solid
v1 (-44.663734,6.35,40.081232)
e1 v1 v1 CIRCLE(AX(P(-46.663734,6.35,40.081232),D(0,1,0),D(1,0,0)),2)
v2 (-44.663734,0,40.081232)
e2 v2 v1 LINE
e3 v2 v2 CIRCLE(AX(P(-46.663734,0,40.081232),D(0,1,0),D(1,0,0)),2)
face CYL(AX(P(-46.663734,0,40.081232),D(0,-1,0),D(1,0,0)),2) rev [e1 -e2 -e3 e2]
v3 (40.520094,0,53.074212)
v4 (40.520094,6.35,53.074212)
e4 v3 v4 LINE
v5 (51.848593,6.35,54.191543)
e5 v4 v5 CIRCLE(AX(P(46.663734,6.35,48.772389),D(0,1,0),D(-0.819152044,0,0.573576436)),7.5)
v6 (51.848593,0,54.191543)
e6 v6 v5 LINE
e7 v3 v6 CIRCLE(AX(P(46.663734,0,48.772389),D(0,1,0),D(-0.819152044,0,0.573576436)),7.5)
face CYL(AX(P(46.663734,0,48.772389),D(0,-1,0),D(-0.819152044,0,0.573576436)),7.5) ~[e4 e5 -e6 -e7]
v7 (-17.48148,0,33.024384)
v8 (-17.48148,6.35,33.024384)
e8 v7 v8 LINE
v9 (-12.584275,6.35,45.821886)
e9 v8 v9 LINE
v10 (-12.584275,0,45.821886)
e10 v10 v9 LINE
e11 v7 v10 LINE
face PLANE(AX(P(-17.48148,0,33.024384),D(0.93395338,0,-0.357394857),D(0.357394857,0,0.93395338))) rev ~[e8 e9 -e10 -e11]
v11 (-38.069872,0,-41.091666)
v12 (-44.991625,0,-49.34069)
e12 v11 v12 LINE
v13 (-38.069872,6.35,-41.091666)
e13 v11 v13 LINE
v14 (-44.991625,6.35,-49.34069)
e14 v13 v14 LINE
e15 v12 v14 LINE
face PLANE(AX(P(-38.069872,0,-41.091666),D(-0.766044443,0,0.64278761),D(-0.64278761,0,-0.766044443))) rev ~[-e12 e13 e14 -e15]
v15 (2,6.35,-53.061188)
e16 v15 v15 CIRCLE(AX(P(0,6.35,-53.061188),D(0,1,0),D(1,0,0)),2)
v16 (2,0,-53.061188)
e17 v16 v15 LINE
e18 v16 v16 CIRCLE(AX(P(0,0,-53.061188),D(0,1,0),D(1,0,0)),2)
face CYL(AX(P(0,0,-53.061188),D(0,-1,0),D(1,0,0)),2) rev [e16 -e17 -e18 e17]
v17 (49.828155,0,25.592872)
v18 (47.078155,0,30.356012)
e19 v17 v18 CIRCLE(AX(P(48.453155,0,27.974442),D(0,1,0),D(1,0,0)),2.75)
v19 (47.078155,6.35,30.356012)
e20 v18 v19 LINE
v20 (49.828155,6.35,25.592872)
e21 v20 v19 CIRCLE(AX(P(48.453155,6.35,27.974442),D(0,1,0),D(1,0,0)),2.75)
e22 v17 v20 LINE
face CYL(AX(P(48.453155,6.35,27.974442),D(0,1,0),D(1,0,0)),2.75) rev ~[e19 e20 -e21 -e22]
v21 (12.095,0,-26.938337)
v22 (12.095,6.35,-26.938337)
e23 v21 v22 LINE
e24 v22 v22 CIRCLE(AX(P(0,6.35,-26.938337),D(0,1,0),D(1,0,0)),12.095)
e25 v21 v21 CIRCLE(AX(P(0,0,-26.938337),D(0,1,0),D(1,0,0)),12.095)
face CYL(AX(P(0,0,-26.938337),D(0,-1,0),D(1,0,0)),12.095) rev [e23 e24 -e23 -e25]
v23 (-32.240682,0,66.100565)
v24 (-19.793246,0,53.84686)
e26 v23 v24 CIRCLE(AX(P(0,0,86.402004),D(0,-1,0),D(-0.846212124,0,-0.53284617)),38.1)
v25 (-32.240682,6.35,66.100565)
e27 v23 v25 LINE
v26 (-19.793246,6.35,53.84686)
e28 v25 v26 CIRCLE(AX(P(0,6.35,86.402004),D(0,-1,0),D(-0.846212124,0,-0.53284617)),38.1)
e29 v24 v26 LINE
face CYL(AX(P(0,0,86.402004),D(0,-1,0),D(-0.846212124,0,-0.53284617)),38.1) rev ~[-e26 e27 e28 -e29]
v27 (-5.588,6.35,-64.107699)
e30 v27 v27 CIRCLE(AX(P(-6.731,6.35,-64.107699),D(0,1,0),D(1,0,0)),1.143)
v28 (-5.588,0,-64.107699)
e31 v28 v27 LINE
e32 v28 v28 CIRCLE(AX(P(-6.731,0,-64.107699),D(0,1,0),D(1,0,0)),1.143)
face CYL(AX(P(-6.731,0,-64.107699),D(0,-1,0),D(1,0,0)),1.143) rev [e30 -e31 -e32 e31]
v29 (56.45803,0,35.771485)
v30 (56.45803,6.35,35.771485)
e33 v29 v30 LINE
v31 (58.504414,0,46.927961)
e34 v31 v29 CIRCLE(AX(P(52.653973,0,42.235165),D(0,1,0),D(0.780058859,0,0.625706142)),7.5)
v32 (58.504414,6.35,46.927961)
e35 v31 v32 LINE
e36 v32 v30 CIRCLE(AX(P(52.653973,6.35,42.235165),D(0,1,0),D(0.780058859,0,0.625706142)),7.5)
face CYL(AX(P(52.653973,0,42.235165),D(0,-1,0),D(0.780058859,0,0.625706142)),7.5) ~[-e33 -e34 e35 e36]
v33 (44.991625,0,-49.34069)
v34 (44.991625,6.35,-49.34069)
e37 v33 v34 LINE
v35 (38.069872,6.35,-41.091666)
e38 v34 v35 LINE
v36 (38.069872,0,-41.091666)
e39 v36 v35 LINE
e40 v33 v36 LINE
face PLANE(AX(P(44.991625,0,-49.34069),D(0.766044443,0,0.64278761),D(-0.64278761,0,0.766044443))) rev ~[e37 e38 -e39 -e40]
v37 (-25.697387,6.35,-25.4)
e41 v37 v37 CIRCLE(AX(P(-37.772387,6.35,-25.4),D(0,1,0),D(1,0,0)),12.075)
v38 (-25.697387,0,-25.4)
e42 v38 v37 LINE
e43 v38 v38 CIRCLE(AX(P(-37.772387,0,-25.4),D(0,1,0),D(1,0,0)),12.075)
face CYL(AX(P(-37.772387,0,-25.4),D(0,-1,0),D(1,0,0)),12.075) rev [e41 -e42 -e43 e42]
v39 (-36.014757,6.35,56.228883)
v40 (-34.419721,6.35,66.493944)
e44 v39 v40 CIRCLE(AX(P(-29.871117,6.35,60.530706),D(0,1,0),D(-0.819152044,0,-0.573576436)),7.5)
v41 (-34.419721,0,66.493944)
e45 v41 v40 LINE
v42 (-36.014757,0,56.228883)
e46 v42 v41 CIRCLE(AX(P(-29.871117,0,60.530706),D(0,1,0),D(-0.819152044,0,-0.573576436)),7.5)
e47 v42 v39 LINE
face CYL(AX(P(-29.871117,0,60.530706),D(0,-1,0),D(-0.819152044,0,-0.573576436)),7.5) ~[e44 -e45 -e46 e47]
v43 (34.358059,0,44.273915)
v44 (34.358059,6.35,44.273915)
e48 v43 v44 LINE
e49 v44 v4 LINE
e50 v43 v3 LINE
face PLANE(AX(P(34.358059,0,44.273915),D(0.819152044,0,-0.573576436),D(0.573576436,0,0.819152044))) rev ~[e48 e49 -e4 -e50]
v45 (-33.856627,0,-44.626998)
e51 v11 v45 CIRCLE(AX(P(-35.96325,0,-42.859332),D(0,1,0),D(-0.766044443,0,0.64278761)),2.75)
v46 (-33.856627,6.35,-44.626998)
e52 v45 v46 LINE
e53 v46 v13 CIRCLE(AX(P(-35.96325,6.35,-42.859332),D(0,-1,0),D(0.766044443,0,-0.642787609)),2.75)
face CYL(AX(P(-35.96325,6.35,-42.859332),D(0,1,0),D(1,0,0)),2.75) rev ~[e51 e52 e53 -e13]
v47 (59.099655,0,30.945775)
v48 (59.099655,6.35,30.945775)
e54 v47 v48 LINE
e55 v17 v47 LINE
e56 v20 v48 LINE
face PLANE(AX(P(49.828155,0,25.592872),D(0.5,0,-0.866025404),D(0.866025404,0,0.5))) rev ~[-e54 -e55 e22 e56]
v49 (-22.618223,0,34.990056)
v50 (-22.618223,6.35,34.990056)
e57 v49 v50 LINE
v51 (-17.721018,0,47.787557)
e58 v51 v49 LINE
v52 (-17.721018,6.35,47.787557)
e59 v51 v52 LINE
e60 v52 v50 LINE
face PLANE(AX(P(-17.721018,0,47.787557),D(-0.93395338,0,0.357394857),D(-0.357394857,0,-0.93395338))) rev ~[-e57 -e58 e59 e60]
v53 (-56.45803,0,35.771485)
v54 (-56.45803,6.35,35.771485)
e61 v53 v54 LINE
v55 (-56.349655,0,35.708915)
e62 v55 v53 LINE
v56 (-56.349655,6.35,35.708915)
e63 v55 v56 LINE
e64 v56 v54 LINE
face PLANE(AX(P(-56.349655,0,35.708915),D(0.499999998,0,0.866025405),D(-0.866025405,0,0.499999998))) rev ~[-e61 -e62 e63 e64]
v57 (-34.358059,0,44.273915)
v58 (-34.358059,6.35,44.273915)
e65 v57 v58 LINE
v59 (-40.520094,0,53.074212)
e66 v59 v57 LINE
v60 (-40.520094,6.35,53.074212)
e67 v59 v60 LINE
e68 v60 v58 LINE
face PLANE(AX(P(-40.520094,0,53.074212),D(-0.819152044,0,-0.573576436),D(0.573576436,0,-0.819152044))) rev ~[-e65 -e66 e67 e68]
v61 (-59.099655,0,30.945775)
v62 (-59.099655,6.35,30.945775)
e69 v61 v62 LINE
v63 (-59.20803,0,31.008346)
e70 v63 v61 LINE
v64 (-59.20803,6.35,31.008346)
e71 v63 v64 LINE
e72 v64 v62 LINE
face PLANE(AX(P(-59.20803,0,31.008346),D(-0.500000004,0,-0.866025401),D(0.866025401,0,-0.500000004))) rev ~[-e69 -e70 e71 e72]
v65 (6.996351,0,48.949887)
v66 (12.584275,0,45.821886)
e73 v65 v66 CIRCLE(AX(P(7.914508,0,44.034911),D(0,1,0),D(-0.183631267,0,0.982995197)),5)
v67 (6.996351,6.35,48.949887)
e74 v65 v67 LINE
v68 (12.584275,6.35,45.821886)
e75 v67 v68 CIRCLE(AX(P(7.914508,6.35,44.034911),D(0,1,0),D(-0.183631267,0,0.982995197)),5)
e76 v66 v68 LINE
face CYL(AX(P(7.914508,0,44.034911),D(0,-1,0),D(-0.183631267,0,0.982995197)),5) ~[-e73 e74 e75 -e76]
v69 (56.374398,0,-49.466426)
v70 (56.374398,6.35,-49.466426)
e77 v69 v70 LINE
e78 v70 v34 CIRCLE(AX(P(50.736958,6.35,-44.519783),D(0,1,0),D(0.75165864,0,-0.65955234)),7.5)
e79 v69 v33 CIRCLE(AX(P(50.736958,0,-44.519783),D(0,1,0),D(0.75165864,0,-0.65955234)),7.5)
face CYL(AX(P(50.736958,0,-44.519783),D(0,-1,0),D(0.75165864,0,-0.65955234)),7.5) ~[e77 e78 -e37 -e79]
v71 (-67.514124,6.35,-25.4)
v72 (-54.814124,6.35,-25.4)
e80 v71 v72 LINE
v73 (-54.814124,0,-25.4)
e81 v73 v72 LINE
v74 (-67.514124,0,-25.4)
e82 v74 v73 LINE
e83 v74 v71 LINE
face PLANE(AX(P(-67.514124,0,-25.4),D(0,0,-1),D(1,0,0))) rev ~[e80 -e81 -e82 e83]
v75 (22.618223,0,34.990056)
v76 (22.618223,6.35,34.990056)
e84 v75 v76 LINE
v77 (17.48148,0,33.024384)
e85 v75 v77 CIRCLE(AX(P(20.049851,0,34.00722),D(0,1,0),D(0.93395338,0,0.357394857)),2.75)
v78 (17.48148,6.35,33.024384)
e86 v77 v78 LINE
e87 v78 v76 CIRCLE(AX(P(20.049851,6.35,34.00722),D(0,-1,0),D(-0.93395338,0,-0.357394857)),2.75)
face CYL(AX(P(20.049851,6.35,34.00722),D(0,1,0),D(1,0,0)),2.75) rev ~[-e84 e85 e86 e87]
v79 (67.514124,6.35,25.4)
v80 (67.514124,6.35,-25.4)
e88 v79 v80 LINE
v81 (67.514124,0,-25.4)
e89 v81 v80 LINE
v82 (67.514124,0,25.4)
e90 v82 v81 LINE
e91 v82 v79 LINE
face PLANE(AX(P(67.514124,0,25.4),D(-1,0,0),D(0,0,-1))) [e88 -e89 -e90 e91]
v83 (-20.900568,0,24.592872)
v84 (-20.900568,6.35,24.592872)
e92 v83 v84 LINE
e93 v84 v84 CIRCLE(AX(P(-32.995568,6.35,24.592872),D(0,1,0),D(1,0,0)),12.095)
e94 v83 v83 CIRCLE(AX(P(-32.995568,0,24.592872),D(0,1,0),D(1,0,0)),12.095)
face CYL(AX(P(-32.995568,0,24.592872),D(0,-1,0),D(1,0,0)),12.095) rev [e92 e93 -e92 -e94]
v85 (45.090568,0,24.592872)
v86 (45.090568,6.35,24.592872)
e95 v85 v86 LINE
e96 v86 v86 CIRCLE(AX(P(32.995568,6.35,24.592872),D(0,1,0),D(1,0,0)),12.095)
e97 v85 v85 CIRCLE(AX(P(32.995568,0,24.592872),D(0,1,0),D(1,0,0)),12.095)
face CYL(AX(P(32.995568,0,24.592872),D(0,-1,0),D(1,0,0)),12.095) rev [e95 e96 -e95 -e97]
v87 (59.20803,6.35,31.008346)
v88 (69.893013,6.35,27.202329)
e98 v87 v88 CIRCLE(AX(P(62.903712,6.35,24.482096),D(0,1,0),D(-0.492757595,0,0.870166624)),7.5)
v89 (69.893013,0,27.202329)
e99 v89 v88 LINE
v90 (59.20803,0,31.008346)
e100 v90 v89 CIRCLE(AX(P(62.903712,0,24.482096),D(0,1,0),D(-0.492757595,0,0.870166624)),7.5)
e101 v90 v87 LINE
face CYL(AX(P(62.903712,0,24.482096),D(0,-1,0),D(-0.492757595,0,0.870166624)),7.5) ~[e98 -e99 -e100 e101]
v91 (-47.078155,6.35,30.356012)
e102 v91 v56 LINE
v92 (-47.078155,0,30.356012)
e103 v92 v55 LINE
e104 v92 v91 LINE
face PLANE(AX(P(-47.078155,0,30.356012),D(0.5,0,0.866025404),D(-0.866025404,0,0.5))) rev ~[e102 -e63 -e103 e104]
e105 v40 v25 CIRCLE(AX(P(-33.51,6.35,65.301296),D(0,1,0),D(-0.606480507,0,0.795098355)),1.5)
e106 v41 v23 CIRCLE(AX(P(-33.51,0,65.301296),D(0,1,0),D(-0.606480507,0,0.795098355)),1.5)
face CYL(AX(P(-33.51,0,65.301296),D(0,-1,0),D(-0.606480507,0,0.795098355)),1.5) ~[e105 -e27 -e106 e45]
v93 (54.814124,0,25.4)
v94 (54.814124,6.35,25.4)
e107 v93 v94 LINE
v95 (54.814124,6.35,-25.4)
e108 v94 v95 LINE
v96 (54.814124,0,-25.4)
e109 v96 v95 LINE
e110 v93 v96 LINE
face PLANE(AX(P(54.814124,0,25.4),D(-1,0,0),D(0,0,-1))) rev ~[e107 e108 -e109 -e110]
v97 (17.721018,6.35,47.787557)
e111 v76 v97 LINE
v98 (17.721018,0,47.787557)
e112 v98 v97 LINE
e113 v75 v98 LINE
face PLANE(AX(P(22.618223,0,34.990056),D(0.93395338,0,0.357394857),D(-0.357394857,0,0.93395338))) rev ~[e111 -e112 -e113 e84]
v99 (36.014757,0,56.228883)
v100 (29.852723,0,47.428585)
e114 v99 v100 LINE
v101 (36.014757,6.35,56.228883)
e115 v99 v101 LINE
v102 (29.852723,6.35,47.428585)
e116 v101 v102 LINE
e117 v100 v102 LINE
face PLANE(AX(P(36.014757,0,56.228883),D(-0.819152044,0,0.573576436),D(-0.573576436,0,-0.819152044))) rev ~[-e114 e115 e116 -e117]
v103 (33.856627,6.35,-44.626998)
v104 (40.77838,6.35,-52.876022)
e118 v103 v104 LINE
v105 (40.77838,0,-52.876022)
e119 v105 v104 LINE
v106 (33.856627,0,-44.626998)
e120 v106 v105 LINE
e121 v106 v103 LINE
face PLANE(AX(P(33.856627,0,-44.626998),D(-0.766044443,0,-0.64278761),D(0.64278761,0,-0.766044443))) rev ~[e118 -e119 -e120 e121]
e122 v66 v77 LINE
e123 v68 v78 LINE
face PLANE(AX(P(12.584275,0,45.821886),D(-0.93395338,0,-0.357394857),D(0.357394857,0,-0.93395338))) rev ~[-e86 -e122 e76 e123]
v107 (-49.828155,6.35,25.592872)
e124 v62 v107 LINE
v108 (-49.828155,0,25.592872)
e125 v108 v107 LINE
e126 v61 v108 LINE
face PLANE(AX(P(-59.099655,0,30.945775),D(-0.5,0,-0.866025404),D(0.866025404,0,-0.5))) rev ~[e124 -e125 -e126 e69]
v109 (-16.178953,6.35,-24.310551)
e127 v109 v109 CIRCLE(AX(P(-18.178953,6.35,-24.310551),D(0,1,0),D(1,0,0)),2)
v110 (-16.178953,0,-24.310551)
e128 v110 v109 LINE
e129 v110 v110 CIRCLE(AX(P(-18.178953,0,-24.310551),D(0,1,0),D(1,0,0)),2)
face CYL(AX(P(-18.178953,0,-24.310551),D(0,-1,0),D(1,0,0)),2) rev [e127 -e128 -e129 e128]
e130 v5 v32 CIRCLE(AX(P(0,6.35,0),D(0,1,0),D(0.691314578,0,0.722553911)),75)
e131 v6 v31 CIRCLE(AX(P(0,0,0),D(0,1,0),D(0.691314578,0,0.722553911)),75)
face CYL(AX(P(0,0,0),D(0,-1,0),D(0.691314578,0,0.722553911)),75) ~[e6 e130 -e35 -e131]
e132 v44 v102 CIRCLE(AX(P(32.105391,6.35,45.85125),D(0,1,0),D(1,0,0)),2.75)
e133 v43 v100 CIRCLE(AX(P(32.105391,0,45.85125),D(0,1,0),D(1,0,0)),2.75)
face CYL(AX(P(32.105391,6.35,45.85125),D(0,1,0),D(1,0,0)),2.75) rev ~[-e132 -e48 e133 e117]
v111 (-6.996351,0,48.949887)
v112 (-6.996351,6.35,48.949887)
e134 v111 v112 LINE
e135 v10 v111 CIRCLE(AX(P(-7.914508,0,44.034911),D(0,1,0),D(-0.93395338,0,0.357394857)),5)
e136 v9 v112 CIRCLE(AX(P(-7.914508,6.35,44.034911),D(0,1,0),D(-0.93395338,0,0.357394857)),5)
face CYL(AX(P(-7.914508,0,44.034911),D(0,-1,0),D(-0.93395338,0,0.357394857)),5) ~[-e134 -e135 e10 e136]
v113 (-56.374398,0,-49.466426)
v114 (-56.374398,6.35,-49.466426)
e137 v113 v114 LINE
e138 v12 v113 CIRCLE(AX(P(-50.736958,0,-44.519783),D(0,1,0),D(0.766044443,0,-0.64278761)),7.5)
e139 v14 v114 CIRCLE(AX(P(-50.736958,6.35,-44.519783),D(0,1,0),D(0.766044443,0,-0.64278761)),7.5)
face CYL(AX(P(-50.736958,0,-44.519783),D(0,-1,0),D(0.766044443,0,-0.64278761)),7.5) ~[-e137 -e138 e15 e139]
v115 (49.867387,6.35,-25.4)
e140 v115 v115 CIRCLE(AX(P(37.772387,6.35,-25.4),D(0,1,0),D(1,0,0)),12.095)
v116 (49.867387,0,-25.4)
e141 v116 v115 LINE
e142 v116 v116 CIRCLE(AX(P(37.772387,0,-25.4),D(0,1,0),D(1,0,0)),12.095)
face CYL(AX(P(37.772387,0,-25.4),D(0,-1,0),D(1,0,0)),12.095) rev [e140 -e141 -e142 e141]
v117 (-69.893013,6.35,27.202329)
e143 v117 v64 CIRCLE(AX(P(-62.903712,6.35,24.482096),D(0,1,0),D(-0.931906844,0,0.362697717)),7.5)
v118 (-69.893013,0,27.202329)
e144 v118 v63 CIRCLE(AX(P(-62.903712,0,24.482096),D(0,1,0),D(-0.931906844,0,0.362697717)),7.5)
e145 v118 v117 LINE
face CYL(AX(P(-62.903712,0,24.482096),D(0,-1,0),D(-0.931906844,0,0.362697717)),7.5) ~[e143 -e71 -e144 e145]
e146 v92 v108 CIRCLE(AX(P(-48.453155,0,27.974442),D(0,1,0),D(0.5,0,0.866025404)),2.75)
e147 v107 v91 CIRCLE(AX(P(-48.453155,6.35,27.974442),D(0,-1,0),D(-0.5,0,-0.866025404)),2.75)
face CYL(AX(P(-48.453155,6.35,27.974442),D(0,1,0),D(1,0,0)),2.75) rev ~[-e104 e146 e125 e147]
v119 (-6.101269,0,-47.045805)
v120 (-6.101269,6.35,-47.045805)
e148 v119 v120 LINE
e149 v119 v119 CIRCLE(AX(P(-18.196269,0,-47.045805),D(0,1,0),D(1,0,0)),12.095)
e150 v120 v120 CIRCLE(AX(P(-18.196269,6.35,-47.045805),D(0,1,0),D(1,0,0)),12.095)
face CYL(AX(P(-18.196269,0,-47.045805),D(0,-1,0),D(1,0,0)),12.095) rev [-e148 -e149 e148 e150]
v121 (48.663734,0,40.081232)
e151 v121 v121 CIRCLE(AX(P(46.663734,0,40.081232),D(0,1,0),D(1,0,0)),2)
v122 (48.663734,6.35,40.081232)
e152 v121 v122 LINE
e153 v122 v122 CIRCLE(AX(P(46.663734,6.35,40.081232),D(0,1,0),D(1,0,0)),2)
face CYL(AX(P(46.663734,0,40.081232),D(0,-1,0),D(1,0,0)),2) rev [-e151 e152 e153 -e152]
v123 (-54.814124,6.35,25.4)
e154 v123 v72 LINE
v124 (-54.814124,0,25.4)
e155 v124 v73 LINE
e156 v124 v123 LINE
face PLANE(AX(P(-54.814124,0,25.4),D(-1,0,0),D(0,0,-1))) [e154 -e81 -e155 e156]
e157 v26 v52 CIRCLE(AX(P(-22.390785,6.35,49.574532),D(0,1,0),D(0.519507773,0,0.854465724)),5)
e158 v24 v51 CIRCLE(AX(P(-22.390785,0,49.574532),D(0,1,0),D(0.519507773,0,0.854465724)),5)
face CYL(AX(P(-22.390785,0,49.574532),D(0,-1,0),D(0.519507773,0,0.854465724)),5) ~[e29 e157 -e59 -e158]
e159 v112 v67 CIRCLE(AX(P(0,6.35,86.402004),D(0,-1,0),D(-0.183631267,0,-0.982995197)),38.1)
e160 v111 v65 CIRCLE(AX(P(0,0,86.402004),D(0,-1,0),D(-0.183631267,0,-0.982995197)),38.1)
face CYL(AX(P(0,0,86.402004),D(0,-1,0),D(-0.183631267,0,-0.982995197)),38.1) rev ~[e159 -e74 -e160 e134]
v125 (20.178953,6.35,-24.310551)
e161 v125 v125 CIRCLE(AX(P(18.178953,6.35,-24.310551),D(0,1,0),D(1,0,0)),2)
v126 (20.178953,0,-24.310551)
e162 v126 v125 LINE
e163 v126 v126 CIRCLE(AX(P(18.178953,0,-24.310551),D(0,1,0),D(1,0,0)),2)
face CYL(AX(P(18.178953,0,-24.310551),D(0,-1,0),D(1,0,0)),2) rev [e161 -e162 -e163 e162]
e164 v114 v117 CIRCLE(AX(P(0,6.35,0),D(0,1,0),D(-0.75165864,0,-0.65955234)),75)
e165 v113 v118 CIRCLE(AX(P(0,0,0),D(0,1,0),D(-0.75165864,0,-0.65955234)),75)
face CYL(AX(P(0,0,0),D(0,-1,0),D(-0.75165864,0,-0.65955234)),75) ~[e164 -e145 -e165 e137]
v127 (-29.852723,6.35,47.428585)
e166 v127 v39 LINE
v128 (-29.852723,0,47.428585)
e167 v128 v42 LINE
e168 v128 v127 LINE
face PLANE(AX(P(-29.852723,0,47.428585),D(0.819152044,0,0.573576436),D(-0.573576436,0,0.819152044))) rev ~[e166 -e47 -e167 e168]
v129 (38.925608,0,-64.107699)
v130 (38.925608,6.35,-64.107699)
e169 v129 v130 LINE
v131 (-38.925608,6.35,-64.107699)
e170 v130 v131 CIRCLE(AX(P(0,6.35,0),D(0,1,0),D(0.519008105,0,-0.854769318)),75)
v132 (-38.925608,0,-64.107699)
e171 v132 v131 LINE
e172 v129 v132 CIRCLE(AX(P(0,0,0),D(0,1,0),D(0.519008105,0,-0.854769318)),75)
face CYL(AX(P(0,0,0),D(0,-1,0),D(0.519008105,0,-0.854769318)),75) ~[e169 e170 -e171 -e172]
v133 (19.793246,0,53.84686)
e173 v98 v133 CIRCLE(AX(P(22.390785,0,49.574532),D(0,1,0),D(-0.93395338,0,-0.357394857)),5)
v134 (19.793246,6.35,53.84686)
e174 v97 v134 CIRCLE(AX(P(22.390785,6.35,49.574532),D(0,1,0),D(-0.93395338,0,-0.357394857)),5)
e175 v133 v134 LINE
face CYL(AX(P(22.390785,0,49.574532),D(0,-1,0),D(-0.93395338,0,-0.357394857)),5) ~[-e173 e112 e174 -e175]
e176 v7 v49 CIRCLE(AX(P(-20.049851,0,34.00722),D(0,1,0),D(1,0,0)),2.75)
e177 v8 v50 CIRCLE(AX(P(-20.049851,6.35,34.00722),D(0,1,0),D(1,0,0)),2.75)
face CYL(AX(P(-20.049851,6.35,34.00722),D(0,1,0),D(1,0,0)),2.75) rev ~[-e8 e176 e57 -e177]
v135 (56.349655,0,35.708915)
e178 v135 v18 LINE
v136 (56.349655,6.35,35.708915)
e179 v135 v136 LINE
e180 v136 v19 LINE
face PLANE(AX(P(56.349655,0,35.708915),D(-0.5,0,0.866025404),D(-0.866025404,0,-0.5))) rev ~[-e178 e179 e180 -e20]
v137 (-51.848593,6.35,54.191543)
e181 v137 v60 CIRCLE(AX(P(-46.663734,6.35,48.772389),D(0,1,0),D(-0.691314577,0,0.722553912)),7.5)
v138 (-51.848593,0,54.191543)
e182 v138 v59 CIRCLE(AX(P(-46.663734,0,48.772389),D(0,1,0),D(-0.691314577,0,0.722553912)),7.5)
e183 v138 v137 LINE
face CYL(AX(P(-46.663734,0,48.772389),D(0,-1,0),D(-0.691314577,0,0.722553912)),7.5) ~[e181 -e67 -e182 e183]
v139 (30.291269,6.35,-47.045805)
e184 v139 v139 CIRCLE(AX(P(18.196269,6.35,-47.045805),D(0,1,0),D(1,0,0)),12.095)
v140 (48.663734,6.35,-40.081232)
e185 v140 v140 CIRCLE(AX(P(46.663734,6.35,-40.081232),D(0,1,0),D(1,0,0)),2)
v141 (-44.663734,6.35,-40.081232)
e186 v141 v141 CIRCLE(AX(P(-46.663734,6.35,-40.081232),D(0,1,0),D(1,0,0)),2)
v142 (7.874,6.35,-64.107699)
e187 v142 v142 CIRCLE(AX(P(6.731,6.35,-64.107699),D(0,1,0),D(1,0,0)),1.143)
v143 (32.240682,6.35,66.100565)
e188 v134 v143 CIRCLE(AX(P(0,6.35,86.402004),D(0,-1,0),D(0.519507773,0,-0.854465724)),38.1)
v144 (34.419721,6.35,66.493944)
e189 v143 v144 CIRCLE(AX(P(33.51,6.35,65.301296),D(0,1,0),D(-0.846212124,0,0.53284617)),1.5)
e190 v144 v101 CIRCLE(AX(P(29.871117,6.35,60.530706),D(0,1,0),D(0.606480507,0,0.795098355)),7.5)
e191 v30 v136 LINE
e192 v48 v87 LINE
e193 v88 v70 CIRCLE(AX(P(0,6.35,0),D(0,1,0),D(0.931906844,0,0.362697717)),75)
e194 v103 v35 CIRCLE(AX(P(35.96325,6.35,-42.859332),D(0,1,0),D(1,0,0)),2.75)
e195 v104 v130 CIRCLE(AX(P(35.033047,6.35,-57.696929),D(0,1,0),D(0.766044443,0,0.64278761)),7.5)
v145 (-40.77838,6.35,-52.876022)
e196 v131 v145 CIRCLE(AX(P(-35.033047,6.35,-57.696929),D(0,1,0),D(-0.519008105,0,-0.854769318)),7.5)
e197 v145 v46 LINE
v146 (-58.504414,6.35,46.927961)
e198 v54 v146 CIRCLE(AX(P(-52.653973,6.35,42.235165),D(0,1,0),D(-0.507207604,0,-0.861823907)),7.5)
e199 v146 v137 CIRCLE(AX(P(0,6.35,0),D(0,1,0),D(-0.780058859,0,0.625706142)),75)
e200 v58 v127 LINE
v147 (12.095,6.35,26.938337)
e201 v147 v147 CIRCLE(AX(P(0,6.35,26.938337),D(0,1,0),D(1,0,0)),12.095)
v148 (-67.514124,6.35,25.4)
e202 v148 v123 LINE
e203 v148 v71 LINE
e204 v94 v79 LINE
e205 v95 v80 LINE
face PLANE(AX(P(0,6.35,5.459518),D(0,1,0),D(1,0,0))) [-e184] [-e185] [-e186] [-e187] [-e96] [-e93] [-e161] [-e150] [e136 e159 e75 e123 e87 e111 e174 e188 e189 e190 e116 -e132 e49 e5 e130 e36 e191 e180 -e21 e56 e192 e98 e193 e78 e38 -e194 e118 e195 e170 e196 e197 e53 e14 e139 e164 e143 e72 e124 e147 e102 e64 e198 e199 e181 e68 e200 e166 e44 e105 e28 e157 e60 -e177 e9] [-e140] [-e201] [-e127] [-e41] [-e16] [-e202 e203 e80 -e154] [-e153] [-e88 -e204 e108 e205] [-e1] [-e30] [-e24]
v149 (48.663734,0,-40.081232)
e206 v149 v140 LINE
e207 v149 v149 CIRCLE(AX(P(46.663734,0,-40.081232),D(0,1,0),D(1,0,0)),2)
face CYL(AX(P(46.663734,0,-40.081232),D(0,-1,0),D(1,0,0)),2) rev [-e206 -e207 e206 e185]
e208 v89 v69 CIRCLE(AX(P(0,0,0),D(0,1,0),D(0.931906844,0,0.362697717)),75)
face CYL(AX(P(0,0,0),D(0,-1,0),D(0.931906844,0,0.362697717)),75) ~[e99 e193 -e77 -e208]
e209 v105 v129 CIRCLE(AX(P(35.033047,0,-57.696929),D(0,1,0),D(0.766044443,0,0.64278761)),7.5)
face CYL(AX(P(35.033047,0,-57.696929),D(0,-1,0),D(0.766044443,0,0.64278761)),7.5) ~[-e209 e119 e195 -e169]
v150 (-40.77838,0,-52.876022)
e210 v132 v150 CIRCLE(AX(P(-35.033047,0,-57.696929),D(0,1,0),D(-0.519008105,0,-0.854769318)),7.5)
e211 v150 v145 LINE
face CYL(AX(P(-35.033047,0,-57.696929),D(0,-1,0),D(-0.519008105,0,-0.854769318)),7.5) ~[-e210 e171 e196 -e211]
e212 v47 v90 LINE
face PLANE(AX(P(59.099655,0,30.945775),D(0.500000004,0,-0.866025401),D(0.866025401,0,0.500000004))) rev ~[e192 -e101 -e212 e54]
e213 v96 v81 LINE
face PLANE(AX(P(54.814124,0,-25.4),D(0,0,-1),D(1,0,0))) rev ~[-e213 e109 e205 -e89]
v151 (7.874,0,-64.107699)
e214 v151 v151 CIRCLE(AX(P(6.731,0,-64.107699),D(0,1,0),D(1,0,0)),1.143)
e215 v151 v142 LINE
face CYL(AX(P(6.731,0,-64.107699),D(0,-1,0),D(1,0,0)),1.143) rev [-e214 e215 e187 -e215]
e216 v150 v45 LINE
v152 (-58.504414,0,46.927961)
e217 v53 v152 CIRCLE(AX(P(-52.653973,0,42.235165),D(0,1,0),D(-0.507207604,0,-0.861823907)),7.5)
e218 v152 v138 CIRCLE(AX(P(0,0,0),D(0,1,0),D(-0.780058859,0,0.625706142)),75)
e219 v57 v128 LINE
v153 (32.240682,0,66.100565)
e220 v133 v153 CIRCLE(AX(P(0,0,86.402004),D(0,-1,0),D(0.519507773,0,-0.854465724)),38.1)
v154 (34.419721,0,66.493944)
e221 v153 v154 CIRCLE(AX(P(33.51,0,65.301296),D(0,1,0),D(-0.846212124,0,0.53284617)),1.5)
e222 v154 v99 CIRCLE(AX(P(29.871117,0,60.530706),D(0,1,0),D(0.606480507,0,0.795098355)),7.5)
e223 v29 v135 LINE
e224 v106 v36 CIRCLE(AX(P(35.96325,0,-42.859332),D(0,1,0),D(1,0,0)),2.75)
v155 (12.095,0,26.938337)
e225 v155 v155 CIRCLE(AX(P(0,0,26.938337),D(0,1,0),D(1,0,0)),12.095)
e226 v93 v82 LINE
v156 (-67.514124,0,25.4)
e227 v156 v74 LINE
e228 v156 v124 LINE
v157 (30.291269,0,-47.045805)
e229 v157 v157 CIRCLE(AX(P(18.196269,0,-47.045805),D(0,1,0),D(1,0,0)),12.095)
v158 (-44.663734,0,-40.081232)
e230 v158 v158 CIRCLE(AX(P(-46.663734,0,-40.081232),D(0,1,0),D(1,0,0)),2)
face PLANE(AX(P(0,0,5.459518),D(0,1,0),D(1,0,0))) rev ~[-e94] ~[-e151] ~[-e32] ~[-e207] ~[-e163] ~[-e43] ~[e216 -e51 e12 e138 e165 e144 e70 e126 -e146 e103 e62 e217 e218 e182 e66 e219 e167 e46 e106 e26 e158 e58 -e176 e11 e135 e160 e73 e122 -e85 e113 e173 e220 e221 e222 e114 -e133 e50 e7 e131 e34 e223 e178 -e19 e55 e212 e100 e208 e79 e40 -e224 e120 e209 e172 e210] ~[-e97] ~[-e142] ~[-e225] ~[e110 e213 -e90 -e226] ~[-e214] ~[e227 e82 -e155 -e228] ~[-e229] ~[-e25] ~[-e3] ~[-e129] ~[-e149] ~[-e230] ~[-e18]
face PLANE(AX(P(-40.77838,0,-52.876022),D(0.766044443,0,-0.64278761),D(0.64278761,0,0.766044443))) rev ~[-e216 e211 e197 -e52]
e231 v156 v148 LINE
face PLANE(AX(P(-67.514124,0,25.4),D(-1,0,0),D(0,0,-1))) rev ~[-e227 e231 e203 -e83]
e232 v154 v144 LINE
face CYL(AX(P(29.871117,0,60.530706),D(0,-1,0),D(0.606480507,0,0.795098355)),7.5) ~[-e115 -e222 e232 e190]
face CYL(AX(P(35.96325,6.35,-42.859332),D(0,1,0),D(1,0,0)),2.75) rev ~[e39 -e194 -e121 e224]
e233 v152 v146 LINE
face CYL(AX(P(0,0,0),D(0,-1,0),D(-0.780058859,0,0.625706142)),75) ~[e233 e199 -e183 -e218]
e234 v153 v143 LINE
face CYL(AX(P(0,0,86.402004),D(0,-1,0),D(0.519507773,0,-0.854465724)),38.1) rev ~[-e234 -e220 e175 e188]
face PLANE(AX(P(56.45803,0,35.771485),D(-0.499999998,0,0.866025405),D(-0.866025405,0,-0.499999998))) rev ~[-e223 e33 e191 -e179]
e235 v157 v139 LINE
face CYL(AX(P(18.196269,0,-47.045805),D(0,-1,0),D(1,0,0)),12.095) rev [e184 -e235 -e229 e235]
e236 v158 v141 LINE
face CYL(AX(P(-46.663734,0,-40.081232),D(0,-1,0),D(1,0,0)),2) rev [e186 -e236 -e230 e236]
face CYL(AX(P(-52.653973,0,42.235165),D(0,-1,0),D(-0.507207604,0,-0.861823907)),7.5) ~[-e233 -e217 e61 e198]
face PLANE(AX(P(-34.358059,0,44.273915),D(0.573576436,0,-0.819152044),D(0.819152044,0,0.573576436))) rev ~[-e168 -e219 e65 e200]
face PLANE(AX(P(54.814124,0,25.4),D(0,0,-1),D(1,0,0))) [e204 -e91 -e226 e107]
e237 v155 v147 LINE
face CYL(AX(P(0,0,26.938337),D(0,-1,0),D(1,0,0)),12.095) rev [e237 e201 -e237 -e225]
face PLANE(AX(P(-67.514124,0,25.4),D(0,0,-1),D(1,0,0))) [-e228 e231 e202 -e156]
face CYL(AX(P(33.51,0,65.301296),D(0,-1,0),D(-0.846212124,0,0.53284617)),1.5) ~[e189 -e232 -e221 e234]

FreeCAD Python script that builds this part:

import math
import FreeCAD as App
import Part
import Sketcher
Q = App.Units.Quantity


def add_polygon(sketch, points):
    """Adds a closed chain of lines whose ends are joined by coincident constraints."""
    first, n = sketch.GeometryCount, len(points)
    for a, b in zip(points, points[1:] + points[:1]):
        sketch.addGeometry(Part.LineSegment(App.Vector(*a, 0), App.Vector(*b, 0)), False)
    for i in range(n):
        sketch.addConstraint(Sketcher.Constraint("Coincident", first + i, 2, first + (i + 1) % n, 1))

doc = App.newDocument("Part")
body = doc.addObject("PartDesign::Body", "Body")

# Sketch on XZ plane
sketch1 = body.newObject("Sketcher::SketchObject", "Sketch")
sketch1.AttachmentSupport = (doc.getObject("XZ_Plane"), [""])
sketch1.MapMode = "FlatFace"
sketch1.addGeometry(Part.LineSegment(App.Vector(-40.520094, 53.074212, 0), App.Vector(-34.358059, 44.273915, 0)), False)  # 0
sketch1.addGeometry(Part.LineSegment(App.Vector(-34.358059, 44.273915, 0), App.Vector(-29.852723, 47.428585, 0)), False)  # 1
sketch1.addGeometry(Part.LineSegment(App.Vector(-29.852723, 47.428585, 0), App.Vector(-36.014757, 56.228883, 0)), False)  # 2
sketch1.addGeometry(Part.ArcOfCircle(Part.Circle(App.Vector(-29.871117, 60.530706, 0), App.Vector(0, 0, 1), 7.5), math.radians(127.335453), math.radians(215)), False)  # 3
sketch1.addGeometry(Part.ArcOfCircle(Part.Circle(App.Vector(-33.51, 65.301296, 0), App.Vector(0, 0, 1), 1.5), math.radians(32.197962), math.radians(127.335453)), False)  # 4
sketch1.addGeometry(Part.ArcOfCircle(Part.Circle(App.Vector(0, 86.402004, 0), App.Vector(0, 0, 1), 38.1), math.radians(-147.802038), math.radians(-121.29924)), False)  # 5
sketch1.addGeometry(Part.ArcOfCircle(Part.Circle(App.Vector(-22.390785, 49.574532, 0), App.Vector(0, 0, 1), 5), math.radians(-20.940291), math.radians(58.70076)), False)  # 6
sketch1.addGeometry(Part.LineSegment(App.Vector(-17.721018, 47.787557, 0), App.Vector(-22.618223, 34.990056, 0)), False)  # 7
sketch1.addGeometry(Part.LineSegment(App.Vector(-22.618223, 34.990056, 0), App.Vector(-17.48148, 33.024384, 0)), False)  # 8
sketch1.addGeometry(Part.LineSegment(App.Vector(-17.48148, 33.024384, 0), App.Vector(-12.584275, 45.821886, 0)), False)  # 9
sketch1.addGeometry(Part.ArcOfCircle(Part.Circle(App.Vector(-7.914508, 44.034911, 0), App.Vector(0, 0, 1), 5), math.radians(79.418657), math.radians(159.059709)), False)  # 10
sketch1.addGeometry(Part.ArcOfCircle(Part.Circle(App.Vector(0, 86.402004, 0), App.Vector(0, 0, 1), 38.1), math.radians(-100.581343), math.radians(-79.418657)), False)  # 11
sketch1.addGeometry(Part.ArcOfCircle(Part.Circle(App.Vector(7.914508, 44.034911, 0), App.Vector(0, 0, 1), 5), math.radians(20.940291), math.radians(100.581343)), False)  # 12
sketch1.addGeometry(Part.LineSegment(App.Vector(12.584275, 45.821886, 0), App.Vector(17.48148, 33.024384, 0)), False)  # 13
sketch1.addGeometry(Part.LineSegment(App.Vector(17.48148, 33.024384, 0), App.Vector(22.618223, 34.990056, 0)), False)  # 14
sketch1.addGeometry(Part.LineSegment(App.Vector(22.618223, 34.990056, 0), App.Vector(17.721018, 47.787557, 0)), False)  # 15
sketch1.addGeometry(Part.ArcOfCircle(Part.Circle(App.Vector(22.390785, 49.574532, 0), App.Vector(0, 0, 1), 5), math.radians(121.29924), math.radians(200.940291)), False)  # 16
sketch1.addGeometry(Part.ArcOfCircle(Part.Circle(App.Vector(0, 86.402004, 0), App.Vector(0, 0, 1), 38.1), math.radians(-58.70076), math.radians(-32.197962)), False)  # 17
sketch1.addGeometry(Part.ArcOfCircle(Part.Circle(App.Vector(33.51, 65.301296, 0), App.Vector(0, 0, 1), 1.5), math.radians(52.664547), math.radians(147.802038)), False)  # 18
sketch1.addGeometry(Part.ArcOfCircle(Part.Circle(App.Vector(29.871117, 60.530706, 0), App.Vector(0, 0, 1), 7.5), math.radians(-35), math.radians(52.664547)), False)  # 19
sketch1.addGeometry(Part.LineSegment(App.Vector(36.014757, 56.228883, 0), App.Vector(29.852723, 47.428585, 0)), False)  # 20
sketch1.addGeometry(Part.LineSegment(App.Vector(29.852723, 47.428585, 0), App.Vector(34.358059, 44.273915, 0)), False)  # 21
sketch1.addGeometry(Part.LineSegment(App.Vector(34.358059, 44.273915, 0), App.Vector(40.520094, 53.074212, 0)), False)  # 22
sketch1.addGeometry(Part.ArcOfCircle(Part.Circle(App.Vector(46.663734, 48.772389, 0), App.Vector(0, 0, 1), 7.5), math.radians(46.265741), math.radians(145)), False)  # 23
sketch1.addGeometry(Part.ArcOfCircle(Part.Circle(App.Vector(0, 0, 0), App.Vector(0, 0, 1), 75), math.radians(38.734035), math.radians(46.265741)), False)  # 24
sketch1.addGeometry(Part.ArcOfCircle(Part.Circle(App.Vector(52.653973, 42.235165, 0), App.Vector(0, 0, 1), 7.5), math.radians(-59.521992), math.radians(38.734035)), False)  # 25
sketch1.addGeometry(Part.LineSegment(App.Vector(56.45803, 35.771485, 0), App.Vector(56.349655, 35.708915, 0)), False)  # 26
sketch1.addGeometry(Part.LineSegment(App.Vector(56.349655, 35.708915, 0), App.Vector(47.078155, 30.356012, 0)), False)  # 27
sketch1.addGeometry(Part.LineSegment(App.Vector(47.078155, 30.356012, 0), App.Vector(49.828155, 25.592872, 0)), False)  # 28
sketch1.addGeometry(Part.LineSegment(App.Vector(49.828155, 25.592872, 0), App.Vector(59.099655, 30.945775, 0)), False)  # 29
sketch1.addGeometry(Part.LineSegment(App.Vector(59.099655, 30.945775, 0), App.Vector(59.20803, 31.008346, 0)), False)  # 30
sketch1.addGeometry(Part.ArcOfCircle(Part.Circle(App.Vector(62.903712, 24.482096, 0), App.Vector(0, 0, 1), 7.5), math.radians(21.265965), math.radians(119.521992)), False)  # 31
sketch1.addGeometry(Part.ArcOfCircle(Part.Circle(App.Vector(0, 0, 0), App.Vector(0, 0, 1), 75), math.radians(-41.265741), math.radians(21.265965)), False)  # 32
sketch1.addGeometry(Part.ArcOfCircle(Part.Circle(App.Vector(50.736958, -44.519783, 0), App.Vector(0, 0, 1), 7.5), math.radians(-140), math.radians(-41.265741)), False)  # 33
sketch1.addGeometry(Part.LineSegment(App.Vector(44.991625, -49.34069, 0), App.Vector(38.069872, -41.091666, 0)), False)  # 34
sketch1.addGeometry(Part.LineSegment(App.Vector(38.069872, -41.091666, 0), App.Vector(33.856627, -44.626998, 0)), False)  # 35
sketch1.addGeometry(Part.LineSegment(App.Vector(33.856627, -44.626998, 0), App.Vector(40.77838, -52.876022, 0)), False)  # 36
sketch1.addGeometry(Part.ArcOfCircle(Part.Circle(App.Vector(35.033047, -57.696929, 0), App.Vector(0, 0, 1), 7.5), math.radians(-58.734259), math.radians(40)), False)  # 37
sketch1.addGeometry(Part.ArcOfCircle(Part.Circle(App.Vector(0, 0, 0), App.Vector(0, 0, 1), 75), math.radians(-121.265741), math.radians(-58.734259)), False)  # 38
sketch1.addGeometry(Part.ArcOfCircle(Part.Circle(App.Vector(-35.033047, -57.696929, 0), App.Vector(0, 0, 1), 7.5), math.radians(140), math.radians(238.734259)), False)  # 39
sketch1.addGeometry(Part.LineSegment(App.Vector(-40.77838, -52.876022, 0), App.Vector(-33.856627, -44.626998, 0)), False)  # 40
sketch1.addGeometry(Part.LineSegment(App.Vector(-33.856627, -44.626998, 0), App.Vector(-38.069872, -41.091666, 0)), False)  # 41
sketch1.addGeometry(Part.LineSegment(App.Vector(-38.069872, -41.091666, 0), App.Vector(-44.991625, -49.34069, 0)), False)  # 42
sketch1.addGeometry(Part.ArcOfCircle(Part.Circle(App.Vector(-50.736958, -44.519783, 0), App.Vector(0, 0, 1), 7.5), math.radians(-138.734259), math.radians(-40)), False)  # 43
sketch1.addGeometry(Part.ArcOfCircle(Part.Circle(App.Vector(0, 0, 0), App.Vector(0, 0, 1), 75), math.radians(158.734035), math.radians(221.265741)), False)  # 44
sketch1.addGeometry(Part.ArcOfCircle(Part.Circle(App.Vector(-62.903712, 24.482096, 0), App.Vector(0, 0, 1), 7.5), math.radians(60.478008), math.radians(158.734035)), False)  # 45
sketch1.addGeometry(Part.LineSegment(App.Vector(-59.20803, 31.008346, 0), App.Vector(-59.099655, 30.945775, 0)), False)  # 46
sketch1.addGeometry(Part.LineSegment(App.Vector(-59.099655, 30.945775, 0), App.Vector(-49.828155, 25.592872, 0)), False)  # 47
sketch1.addGeometry(Part.LineSegment(App.Vector(-49.828155, 25.592872, 0), App.Vector(-47.078155, 30.356012, 0)), False)  # 48
sketch1.addGeometry(Part.LineSegment(App.Vector(-47.078155, 30.356012, 0), App.Vector(-56.349655, 35.708915, 0)), False)  # 49
sketch1.addGeometry(Part.LineSegment(App.Vector(-56.349655, 35.708915, 0), App.Vector(-56.45803, 35.771485, 0)), False)  # 50
sketch1.addGeometry(Part.ArcOfCircle(Part.Circle(App.Vector(-52.653973, 42.235165, 0), App.Vector(0, 0, 1), 7.5), math.radians(141.265965), math.radians(239.521992)), False)  # 51
sketch1.addGeometry(Part.ArcOfCircle(Part.Circle(App.Vector(0, 0, 0), App.Vector(0, 0, 1), 75), math.radians(133.734259), math.radians(141.265965)), False)  # 52
sketch1.addGeometry(Part.ArcOfCircle(Part.Circle(App.Vector(-46.663734, 48.772389, 0), App.Vector(0, 0, 1), 7.5), math.radians(35), math.radians(133.734259)), False)  # 53
sketch1.addGeometry(Part.Circle(App.Vector(-46.663734, 40.081232, 0), App.Vector(0, 0, 1), 2), False)  # 54
sketch1.addGeometry(Part.Circle(App.Vector(-32.995568, 24.592872, 0), App.Vector(0, 0, 1), 12.095), False)  # 55
add_polygon(sketch1, [(-54.814124, 25.4), (-67.514124, 25.4), (-67.514124, -25.4), (-54.814124, -25.4)])  # lines 56-59
sketch1.addGeometry(Part.Circle(App.Vector(0, 26.938337, 0), App.Vector(0, 0, 1), 12.095), False)  # 60
sketch1.addGeometry(Part.Circle(App.Vector(32.995568, 24.592872, 0), App.Vector(0, 0, 1), 12.095), False)  # 61
sketch1.addGeometry(Part.Circle(App.Vector(46.663734, 40.081232, 0), App.Vector(0, 0, 1), 2), False)  # 62
add_polygon(sketch1, [(67.514124, 25.4), (54.814124, 25.4), (54.814124, -25.4), (67.514124, -25.4)])  # lines 63-66
sketch1.addGeometry(Part.Circle(App.Vector(-37.772387, -25.4, 0), App.Vector(0, 0, 1), 12.075), False)  # 67
sketch1.addGeometry(Part.Circle(App.Vector(-18.178953, -24.310551, 0), App.Vector(0, 0, 1), 2), False)  # 68
sketch1.addGeometry(Part.Circle(App.Vector(-46.663734, -40.081232, 0), App.Vector(0, 0, 1), 2), False)  # 69
sketch1.addGeometry(Part.Circle(App.Vector(-18.196269, -47.045805, 0), App.Vector(0, 0, 1), 12.095), False)  # 70
sketch1.addGeometry(Part.Circle(App.Vector(-6.731, -64.107699, 0), App.Vector(0, 0, 1), 1.143), False)  # 71
sketch1.addGeometry(Part.Circle(App.Vector(18.178953, -24.310551, 0), App.Vector(0, 0, 1), 2), False)  # 72
sketch1.addGeometry(Part.Circle(App.Vector(0, -26.938337, 0), App.Vector(0, 0, 1), 12.095), False)  # 73
sketch1.addGeometry(Part.Circle(App.Vector(37.772387, -25.4, 0), App.Vector(0, 0, 1), 12.095), False)  # 74
sketch1.addGeometry(Part.Circle(App.Vector(18.196269, -47.045805, 0), App.Vector(0, 0, 1), 12.095), False)  # 75
sketch1.addGeometry(Part.Circle(App.Vector(0, -53.061188, 0), App.Vector(0, 0, 1), 2), False)  # 76
sketch1.addGeometry(Part.Circle(App.Vector(6.731, -64.107699, 0), App.Vector(0, 0, 1), 1.143), False)  # 77
sketch1.addGeometry(Part.Circle(App.Vector(46.663734, -40.081232, 0), App.Vector(0, 0, 1), 2), False)  # 78
sketch1.addConstraint([
    Sketcher.Constraint("Coincident", 0, 2, 1, 1),
    Sketcher.Constraint("Coincident", 1, 2, 2, 1),
    Sketcher.Constraint("Tangent", 2, 2, 3, 2),
    Sketcher.Constraint("Tangent", 3, 1, 4, 2),
    Sketcher.Constraint("Tangent", 4, 1, 5, 1),
    Sketcher.Constraint("Tangent", 5, 2, 6, 2),
    Sketcher.Constraint("Tangent", 6, 1, 7, 1),
    Sketcher.Constraint("Coincident", 7, 2, 8, 1),
    Sketcher.Constraint("Coincident", 8, 2, 9, 1),
    Sketcher.Constraint("Tangent", 9, 2, 10, 2),
    Sketcher.Constraint("Tangent", 10, 1, 11, 1),
    Sketcher.Constraint("Tangent", 11, 2, 12, 2),
    Sketcher.Constraint("Tangent", 12, 1, 13, 1),
    Sketcher.Constraint("Coincident", 13, 2, 14, 1),
    Sketcher.Constraint("Coincident", 14, 2, 15, 1),
    Sketcher.Constraint("Tangent", 15, 2, 16, 2),
    Sketcher.Constraint("Tangent", 16, 1, 17, 1),
    Sketcher.Constraint("Tangent", 17, 2, 18, 2),
    Sketcher.Constraint("Tangent", 18, 1, 19, 2),
    Sketcher.Constraint("Tangent", 19, 1, 20, 1),
    Sketcher.Constraint("Coincident", 20, 2, 21, 1),
    Sketcher.Constraint("Coincident", 21, 2, 22, 1),
    Sketcher.Constraint("Tangent", 22, 2, 23, 2),
    Sketcher.Constraint("Tangent", 23, 1, 24, 2),
    Sketcher.Constraint("Tangent", 24, 1, 25, 2),
    Sketcher.Constraint("Coincident", 25, 1, 26, 1),
    Sketcher.Constraint("Coincident", 26, 2, 27, 1),
    Sketcher.Constraint("Coincident", 27, 2, 28, 1),
    Sketcher.Constraint("Coincident", 28, 2, 29, 1),
    Sketcher.Constraint("Coincident", 29, 2, 30, 1),
    Sketcher.Constraint("Coincident", 30, 2, 31, 2),
    Sketcher.Constraint("Tangent", 31, 1, 32, 2),
    Sketcher.Constraint("Tangent", 32, 1, 33, 2),
    Sketcher.Constraint("Tangent", 33, 1, 34, 1),
    Sketcher.Constraint("Coincident", 34, 2, 35, 1),
    Sketcher.Constraint("Coincident", 35, 2, 36, 1),
    Sketcher.Constraint("Tangent", 36, 2, 37, 2),
    Sketcher.Constraint("Tangent", 37, 1, 38, 2),
    Sketcher.Constraint("Tangent", 38, 1, 39, 2),
    Sketcher.Constraint("Tangent", 39, 1, 40, 1),
    Sketcher.Constraint("Coincident", 40, 2, 41, 1),
    Sketcher.Constraint("Coincident", 41, 2, 42, 1),
    Sketcher.Constraint("Tangent", 42, 2, 43, 2),
    Sketcher.Constraint("Tangent", 43, 1, 44, 2),
    Sketcher.Constraint("Tangent", 44, 1, 45, 2),
    Sketcher.Constraint("Coincident", 45, 1, 46, 1),
    Sketcher.Constraint("Coincident", 46, 2, 47, 1),
    Sketcher.Constraint("Coincident", 47, 2, 48, 1),
    Sketcher.Constraint("Coincident", 48, 2, 49, 1),
    Sketcher.Constraint("Coincident", 49, 2, 50, 1),
    Sketcher.Constraint("Coincident", 50, 2, 51, 2),
    Sketcher.Constraint("Tangent", 51, 1, 52, 2),
    Sketcher.Constraint("Tangent", 52, 1, 53, 2),
    Sketcher.Constraint("Tangent", 53, 1, 0, 1),
    Sketcher.Constraint("Horizontal", 56),
    Sketcher.Constraint("Vertical", 57),
    Sketcher.Constraint("Horizontal", 58),
    Sketcher.Constraint("Vertical", 59),
    Sketcher.Constraint("Horizontal", 63),
    Sketcher.Constraint("Vertical", 64),
    Sketcher.Constraint("Horizontal", 65),
    Sketcher.Constraint("Vertical", 66),
    Sketcher.Constraint("Coincident", 24, 3, -1, 1),
    Sketcher.Constraint("Coincident", 32, 3, -1, 1),
    Sketcher.Constraint("Coincident", 38, 3, -1, 1),
    Sketcher.Constraint("Coincident", 44, 3, -1, 1),
    Sketcher.Constraint("Coincident", 52, 3, -1, 1),
    Sketcher.Constraint("Coincident", 11, 3, 5, 3),
    Sketcher.Constraint("Coincident", 17, 3, 5, 3),
    Sketcher.Constraint("Equal", 6, 10),
    Sketcher.Constraint("Equal", 5, 11),
    Sketcher.Constraint("Equal", 10, 12),
    Sketcher.Constraint("Equal", 12, 16),
    Sketcher.Constraint("Equal", 11, 17),
    Sketcher.Constraint("Equal", 4, 18),
    Sketcher.Constraint("Equal", 3, 19),
    Sketcher.Constraint("Equal", 19, 23),
    Sketcher.Constraint("Equal", 23, 25),
    Sketcher.Constraint("Equal", 25, 31),
    Sketcher.Constraint("Equal", 24, 32),
    Sketcher.Constraint("Equal", 31, 33),
    Sketcher.Constraint("Equal", 33, 37),
    Sketcher.Constraint("Equal", 32, 38),
    Sketcher.Constraint("Equal", 37, 39),
    Sketcher.Constraint("Equal", 39, 43),
    Sketcher.Constraint("Equal", 38, 44),
    Sketcher.Constraint("Equal", 43, 45),
    Sketcher.Constraint("Equal", 45, 51),
    Sketcher.Constraint("Equal", 44, 52),
    Sketcher.Constraint("Equal", 51, 53),
    Sketcher.Constraint("Equal", 55, 60),
    Sketcher.Constraint("Equal", 60, 61),
    Sketcher.Constraint("Equal", 54, 62),
    Sketcher.Constraint("Equal", 62, 68),
    Sketcher.Constraint("Equal", 68, 69),
    Sketcher.Constraint("Equal", 61, 70),
    Sketcher.Constraint("Equal", 69, 72),
    Sketcher.Constraint("Equal", 70, 73),
    Sketcher.Constraint("Equal", 73, 74),
    Sketcher.Constraint("Equal", 74, 75),
    Sketcher.Constraint("Equal", 72, 76),
    Sketcher.Constraint("Equal", 71, 77),
    Sketcher.Constraint("Equal", 76, 78),
    Sketcher.Constraint("Symmetric", 62, 3, 69, 3, -1, 1),
    Sketcher.Constraint("Symmetric", 60, 3, 73, 3, -1, 1),
    Sketcher.Constraint("Symmetric", 54, 3, 78, 3, -1, 1),
    Sketcher.Constraint("Symmetric", 58, 2, 63, 2, -1, 1),
    Sketcher.Constraint("Symmetric", 56, 2, 65, 2, -1, 1),
    Sketcher.Constraint("Symmetric", 10, 3, 12, 3, -2),
    Sketcher.Constraint("Symmetric", 3, 3, 19, 3, -2),
    Sketcher.Constraint("Symmetric", 55, 3, 61, 3, -2),
    Sketcher.Constraint("Symmetric", 54, 3, 62, 3, -2),
    Sketcher.Constraint("Symmetric", 68, 3, 72, 3, -2),
    Sketcher.Constraint("Symmetric", 67, 3, 74, 3, -2),
    Sketcher.Constraint("Symmetric", 70, 3, 75, 3, -2),
    Sketcher.Constraint("Symmetric", 71, 3, 77, 3, -2),
    Sketcher.Constraint("Symmetric", 8, 2, 13, 2, -2),
    Sketcher.Constraint("Symmetric", 7, 2, 14, 2, -2),
    Sketcher.Constraint("Symmetric", 1, 2, 20, 2, -2),
    Sketcher.Constraint("Symmetric", 0, 2, 21, 2, -2),
    Sketcher.Constraint("Symmetric", 36, 2, 39, 1, -2),
    Sketcher.Constraint("Symmetric", 34, 2, 41, 2, -2),
    Sketcher.Constraint("Symmetric", 30, 2, 45, 1, -2),
    Sketcher.Constraint("Symmetric", 29, 2, 46, 2, -2),
    Sketcher.Constraint("Symmetric", 28, 2, 47, 2, -2),
    Sketcher.Constraint("Symmetric", 27, 2, 48, 2, -2),
    Sketcher.Constraint("Symmetric", 26, 2, 49, 2, -2),
    Sketcher.Constraint("Symmetric", 25, 1, 50, 2, -2),
    Sketcher.Constraint("PointOnObject", 60, 3, -2),
    Sketcher.Constraint("PointOnObject", 76, 3, -2),
    Sketcher.Constraint("Perpendicular", 0, 1),
    Sketcher.Constraint("Perpendicular", 1, 2),
    Sketcher.Constraint("Perpendicular", 7, 8),
    Sketcher.Constraint("Perpendicular", 8, 9),
    Sketcher.Constraint("Perpendicular", 14, 15),
    Sketcher.Constraint("Perpendicular", 21, 22),
    Sketcher.Constraint("Parallel", 26, 27),
    Sketcher.Constraint("Perpendicular", 27, 28),
    Sketcher.Constraint("Perpendicular", 28, 29),
    Sketcher.Constraint("Parallel", 29, 30),
    Sketcher.Constraint("Perpendicular", 34, 35),
    Sketcher.Constraint("Perpendicular", 35, 36),
    Sketcher.Constraint("Perpendicular", 40, 41),
    Sketcher.Constraint("Perpendicular", 41, 42),
    Sketcher.Constraint("Horizontal", 77, 3, 37, 1),
    Sketcher.Constraint("Horizontal", 74, 3, 57, 2),
    Sketcher.Constraint("Horizontal", 59, 2, 63, 2),
    Sketcher.Constraint("Vertical", 53, 3, 54, 3),
    Sketcher.Constraint("Equal", 0, 2),
    Sketcher.Constraint("Equal", 1, 8),
    Sketcher.Constraint("Equal", 7, 9),
    Sketcher.Constraint("Equal", 21, 28),
    Sketcher.Constraint("Equal", 27, 29),
    Sketcher.Constraint("Equal", 26, 30),
    Sketcher.Constraint("Equal", 28, 35),
    Sketcher.Constraint("Equal", 34, 36),
    Sketcher.Constraint("Diameter", 54, 4.0),
    Sketcher.Constraint("Radius", 6, 5.0),
    Sketcher.Constraint("Radius", 24, 75.0),
    Sketcher.Constraint("Radius", 3, 7.5),
    Sketcher.Constraint("Radius", 4, 1.5),
    Sketcher.Constraint("Radius", 5, 38.1),
    Sketcher.Constraint("Diameter", 55, 24.19),
    Sketcher.Constraint("Diameter", 67, 24.15),
    Sketcher.Constraint("Angle", 0, Q("-55 deg")),
    Sketcher.Constraint("Angle", 26, Q("-150 deg")),
    Sketcher.Constraint("Angle", 34, Q("130 deg")),
    Sketcher.Constraint("Diameter", 71, 2.286),
    Sketcher.Constraint("DistanceX", 56, 2, 56, 1, 12.7),
    Sketcher.Constraint("DistanceY", 57, 2, 57, 1, 50.8),
    Sketcher.Constraint("Distance", 1, 5.5),
    Sketcher.Constraint("DistanceX", 4, 3, -1, 1, 33.51),
    Sketcher.Constraint("DistanceX", 71, 3, -1, 1, 6.731),
    Sketcher.Constraint("Distance", 0, 10.743179),
    Sketcher.Constraint("Distance", 26, 0.125141),
    Sketcher.Constraint("DistanceY", -1, 1, 6, 3, 49.574532),
    Sketcher.Constraint("DistanceY", -1, 1, 10, 3, 44.034911),
    Sketcher.Constraint("DistanceX", -1, 1, 31, 3, 62.903712),
    Sketcher.Constraint("DistanceY", -1, 1, 54, 3, 40.081232),
    Sketcher.Constraint("DistanceY", 68, 3, -1, 1, 24.310551),
    Sketcher.Constraint("DistanceX", 70, 3, -1, 1, 18.196269),
    Sketcher.Constraint("DistanceX", 8, 2, -1, 1, 17.48148),
    Sketcher.Constraint("DistanceX", -1, 1, 25, 1, 56.45803),
    Sketcher.Constraint("DistanceX", -1, 1, 34, 2, 38.069872),
    Sketcher.Constraint("Distance", 27, 10.705806),
    Sketcher.Constraint("DistanceX", 55, 3, -1, 1, 32.995568),
    Sketcher.Constraint("DistanceY", -1, 1, 55, 3, 24.592872),
    Sketcher.Constraint("DistanceY", -1, 1, 60, 3, 26.938337),
    Sketcher.Constraint("DistanceX", 67, 3, -1, 1, 37.772387),
    Sketcher.Constraint("DistanceX", 68, 3, -1, 1, 18.178953),
    Sketcher.Constraint("DistanceY", 70, 3, -1, 1, 47.045805),
    Sketcher.Constraint("DistanceY", 76, 3, -1, 1, 53.061188),
    Sketcher.Constraint("DistanceX", 56, 2, -1, 1, 67.514124),
])
pad1 = body.newObject("PartDesign::Pad", "Pad")
pad1.Profile = sketch1
pad1.Length = 6.35
pad1.Reversed = True

# Sketch on XZ plane
sketch2 = body.newObject("Sketcher::SketchObject", "Sketch001")
sketch2.AttachmentSupport = (doc.getObject("XZ_Plane"), [""])
sketch2.MapMode = "FlatFace"
sketch2.AttachmentOffset = App.Placement(App.Vector(0, 0, -6.35), App.Rotation())
sketch2.addGeometry([
    Part.Circle(App.Vector(-48.453155, 27.974442, 0), App.Vector(0, 0, 1), 2.75),  # 0
    Part.Circle(App.Vector(-20.049851, 34.00722, 0), App.Vector(0, 0, 1), 2.75),  # 1
    Part.Circle(App.Vector(20.049851, 34.00722, 0), App.Vector(0, 0, 1), 2.75),  # 2
    Part.Circle(App.Vector(32.105391, 45.85125, 0), App.Vector(0, 0, 1), 2.75),  # 3
    Part.Circle(App.Vector(48.453155, 27.974442, 0), App.Vector(0, 0, 1), 2.75),  # 4
    Part.Circle(App.Vector(35.96325, -42.859332, 0), App.Vector(0, 0, 1), 2.75),  # 5
    Part.Circle(App.Vector(-35.96325, -42.859332, 0), App.Vector(0, 0, 1), 2.75),  # 6
], False)
sketch2.addConstraint([
    Sketcher.Constraint("Equal", 0, 1),
    Sketcher.Constraint("Equal", 1, 2),
    Sketcher.Constraint("Equal", 2, 3),
    Sketcher.Constraint("Equal", 3, 4),
    Sketcher.Constraint("Equal", 4, 5),
    Sketcher.Constraint("Equal", 5, 6),
    Sketcher.Constraint("Symmetric", 1, 3, 2, 3, -2),
    Sketcher.Constraint("Symmetric", 0, 3, 4, 3, -2),
    Sketcher.Constraint("Symmetric", 5, 3, 6, 3, -2),
    Sketcher.Constraint("Diameter", 0, 5.5),
    Sketcher.Constraint("DistanceX", 2, 3, 5, 3, 15.913398),
    Sketcher.Constraint("DistanceX", 1, 3, 5, 3, 56.013101),
    Sketcher.Constraint("DistanceY", -1, 1, 1, 3, 34.00722),
    Sketcher.Constraint("DistanceX", -1, 1, 3, 3, 32.105391),
    Sketcher.Constraint("DistanceY", -1, 1, 3, 3, 45.85125),
    Sketcher.Constraint("DistanceY", 5, 3, -1, 1, 42.859332),
    Sketcher.Constraint("DistanceY", 0, 3, 3, 3, 17.876808),
    Sketcher.Constraint("DistanceX", 0, 3, 4, 3, 96.90631),
])
pocket1 = body.newObject("PartDesign::Pocket", "Pocket")
pocket1.Profile = sketch2
pocket1.Length = 10
pocket1.Reversed = True

doc.recompute()
